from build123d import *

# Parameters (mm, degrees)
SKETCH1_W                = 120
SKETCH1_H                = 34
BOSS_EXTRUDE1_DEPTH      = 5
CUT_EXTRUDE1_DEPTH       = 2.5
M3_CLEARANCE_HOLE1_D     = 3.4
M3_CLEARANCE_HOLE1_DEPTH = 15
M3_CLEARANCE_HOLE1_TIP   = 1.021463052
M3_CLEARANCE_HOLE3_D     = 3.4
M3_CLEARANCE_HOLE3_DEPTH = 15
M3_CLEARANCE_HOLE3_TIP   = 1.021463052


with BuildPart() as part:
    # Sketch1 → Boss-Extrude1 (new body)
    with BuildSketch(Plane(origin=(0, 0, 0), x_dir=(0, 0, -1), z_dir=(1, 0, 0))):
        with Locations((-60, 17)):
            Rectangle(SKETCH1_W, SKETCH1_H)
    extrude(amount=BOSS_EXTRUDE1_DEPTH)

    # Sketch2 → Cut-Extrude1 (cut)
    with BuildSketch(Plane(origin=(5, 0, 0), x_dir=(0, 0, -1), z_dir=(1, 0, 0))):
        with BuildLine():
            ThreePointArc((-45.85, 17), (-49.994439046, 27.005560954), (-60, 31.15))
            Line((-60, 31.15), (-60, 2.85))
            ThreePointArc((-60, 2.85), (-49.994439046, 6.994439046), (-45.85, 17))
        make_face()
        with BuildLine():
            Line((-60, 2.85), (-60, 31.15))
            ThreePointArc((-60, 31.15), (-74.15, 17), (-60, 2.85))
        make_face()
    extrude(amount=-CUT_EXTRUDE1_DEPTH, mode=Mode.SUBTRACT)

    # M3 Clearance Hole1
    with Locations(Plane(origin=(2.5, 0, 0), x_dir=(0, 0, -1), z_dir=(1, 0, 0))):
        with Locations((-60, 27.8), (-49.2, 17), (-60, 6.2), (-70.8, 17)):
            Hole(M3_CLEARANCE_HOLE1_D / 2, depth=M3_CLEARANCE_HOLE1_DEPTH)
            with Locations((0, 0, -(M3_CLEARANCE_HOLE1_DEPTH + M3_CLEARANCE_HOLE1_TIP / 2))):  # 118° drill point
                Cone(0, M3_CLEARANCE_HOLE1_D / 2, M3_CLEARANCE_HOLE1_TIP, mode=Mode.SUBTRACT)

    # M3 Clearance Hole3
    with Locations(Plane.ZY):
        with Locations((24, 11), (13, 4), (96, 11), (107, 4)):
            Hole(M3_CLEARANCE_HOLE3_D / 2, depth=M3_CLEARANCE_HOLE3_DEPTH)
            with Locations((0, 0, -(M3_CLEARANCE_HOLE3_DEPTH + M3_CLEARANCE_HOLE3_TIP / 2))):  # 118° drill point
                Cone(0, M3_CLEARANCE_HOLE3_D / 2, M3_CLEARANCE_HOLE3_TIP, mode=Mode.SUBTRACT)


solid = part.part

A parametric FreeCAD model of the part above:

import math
import FreeCAD as App
import Part
import Sketcher


def add_polygon(sketch, points):
    """Adds a closed chain of lines whose ends are joined by coincident constraints."""
    first, n = sketch.GeometryCount, len(points)
    for a, b in zip(points, points[1:] + points[:1]):
        sketch.addGeometry(Part.LineSegment(App.Vector(*a, 0), App.Vector(*b, 0)), False)
    for i in range(n):
        sketch.addConstraint(Sketcher.Constraint("Coincident", first + i, 2, first + (i + 1) % n, 1))

doc = App.newDocument("Part")
body = doc.addObject("PartDesign::Body", "Body")

sketch1 = body.newObject("Sketcher::SketchObject", "Sketch")
sketch1.AttachmentSupport = (doc.getObject("YZ_Plane"), [""])
sketch1.MapMode = "FlatFace"
add_polygon(sketch1, [(34, 120), (0, 120), (0, 0), (34, 0)])
sketch1.addConstraint([
    Sketcher.Constraint("Horizontal", 0),
    Sketcher.Constraint("Vertical", 1),
    Sketcher.Constraint("Horizontal", 2),
    Sketcher.Constraint("Vertical", 3),
    Sketcher.Constraint("Coincident", 1, 2, -1, 1),
    Sketcher.Constraint("DistanceX", 0, 2, 0, 1, 34.0),
    Sketcher.Constraint("DistanceY", 1, 2, 1, 1, 120.0),
])
pad1 = body.newObject("PartDesign::Pad", "Pad")
pad1.Profile = sketch1
pad1.Length = 5

sketch2 = body.newObject("Sketcher::SketchObject", "Sketch001")
sketch2.AttachmentSupport = (doc.getObject("YZ_Plane"), [""])
sketch2.MapMode = "FlatFace"
sketch2.AttachmentOffset = App.Placement(App.Vector(0, 0, 5), App.Rotation())
sketch2.addGeometry([
    Part.ArcOfCircle(Part.Circle(App.Vector(17, 60, 0), App.Vector(0, 0, 1), 14.15), math.radians(-90), math.radians(0)),
    Part.ArcOfCircle(Part.Circle(App.Vector(17, 60, 0), App.Vector(0, 0, 1), 14.15), math.radians(0), math.radians(180)),
    Part.ArcOfCircle(Part.Circle(App.Vector(17, 60, 0), App.Vector(0, 0, 1), 14.15), math.radians(180), math.radians(270)),
], False)
sketch2.addConstraint([
    Sketcher.Constraint("Tangent", 0, 2, 1, 1),
    Sketcher.Constraint("Tangent", 1, 2, 2, 1),
    Sketcher.Constraint("Tangent", 2, 2, 0, 1),
    Sketcher.Constraint("Horizontal", 2, 3, 0, 2),
    Sketcher.Constraint("Horizontal", 0, 2, 1, 2),
    Sketcher.Constraint("Vertical", 1, 3, 2, 2),
    Sketcher.Constraint("Radius", 0, 14.15),
    Sketcher.Constraint("DistanceX", -1, 1, 0, 3, 17.0),
    Sketcher.Constraint("DistanceY", -1, 1, 0, 3, 60.0),
])
pocket1 = body.newObject("PartDesign::Pocket", "Pocket")
pocket1.Profile = sketch2
pocket1.Length = 2.5

sketch3 = body.newObject("Sketcher::SketchObject", "Sketch002")
sketch3.AttachmentSupport = (doc.getObject("YZ_Plane"), [""])
sketch3.MapMode = "FlatFace"
sketch3.AttachmentOffset = App.Placement(App.Vector(0, 0, 2.5), App.Rotation())
sketch3.addGeometry([
    Part.Circle(App.Vector(27.8, 60, 0), App.Vector(0, 0, 1), 1.7),
    Part.Circle(App.Vector(17, 49.2, 0), App.Vector(0, 0, 1), 1.7),
    Part.Circle(App.Vector(6.2, 60, 0), App.Vector(0, 0, 1), 1.7),
    Part.Circle(App.Vector(17, 70.8, 0), App.Vector(0, 0, 1), 1.7),
], False)
sketch3.addConstraint([
    Sketcher.Constraint("Equal", 0, 1),
    Sketcher.Constraint("Equal", 1, 2),
    Sketcher.Constraint("Equal", 2, 3),
    Sketcher.Constraint("Horizontal", 0, 3, 2, 3),
    Sketcher.Constraint("Vertical", 1, 3, 3, 3),
    Sketcher.Constraint("Diameter", 0, 3.4),
    Sketcher.Constraint("DistanceY", -1, 1, 0, 3, 60.0),
    Sketcher.Constraint("DistanceX", -1, 1, 1, 3, 17.0),
    Sketcher.Constraint("DistanceX", -1, 1, 0, 3, 27.8),
    Sketcher.Constraint("DistanceY", -1, 1, 1, 3, 49.2),
    Sketcher.Constraint("DistanceX", -1, 1, 2, 3, 6.2),
    Sketcher.Constraint("DistanceY", -1, 1, 3, 3, 70.8),
])
doc.recompute()
hole = body.newObject("PartDesign::Hole", "Hole")
hole.Profile = sketch3
hole.ThreadType = "None"
hole.Diameter = 3.4
hole.DepthType = "Dimension"
hole.Depth = 15
hole.DrillPoint = "Angled"
hole.DrillPointAngle = 118

sketch4 = body.newObject("Sketcher::SketchObject", "Sketch003")
sketch4.AttachmentSupport = (doc.getObject("YZ_Plane"), [""])
sketch4.MapMode = "FlatFace"
sketch4.addGeometry([
    Part.Circle(App.Vector(11, 24, 0), App.Vector(0, 0, 1), 1.7),
    Part.Circle(App.Vector(4, 13, 0), App.Vector(0, 0, 1), 1.7),
    Part.Circle(App.Vector(11, 96, 0), App.Vector(0, 0, 1), 1.7),
    Part.Circle(App.Vector(4, 107, 0), App.Vector(0, 0, 1), 1.7),
], False)
sketch4.addConstraint([
    Sketcher.Constraint("Equal", 0, 1),
    Sketcher.Constraint("Equal", 1, 2),
    Sketcher.Constraint("Equal", 2, 3),
    Sketcher.Constraint("Vertical", 0, 3, 2, 3),
    Sketcher.Constraint("Vertical", 1, 3, 3, 3),
    Sketcher.Constraint("Diameter", 0, 3.4),
    Sketcher.Constraint("DistanceX", -1, 1, 0, 3, 11.0),
    Sketcher.Constraint("DistanceY", -1, 1, 0, 3, 24.0),
    Sketcher.Constraint("DistanceX", -1, 1, 1, 3, 4.0),
    Sketcher.Constraint("DistanceY", -1, 1, 1, 3, 13.0),
    Sketcher.Constraint("DistanceY", -1, 1, 2, 3, 96.0),
    Sketcher.Constraint("DistanceY", -1, 1, 3, 3, 107.0),
])
doc.recompute()
hole2 = body.newObject("PartDesign::Hole", "Hole001")
hole2.Profile = sketch4
hole2.ThreadType = "None"
hole2.Diameter = 3.4
hole2.DepthType = "Dimension"
hole2.Depth = 15
hole2.DrillPoint = "Angled"
hole2.DrillPointAngle = 118
hole2.Reversed = True

doc.recompute()
